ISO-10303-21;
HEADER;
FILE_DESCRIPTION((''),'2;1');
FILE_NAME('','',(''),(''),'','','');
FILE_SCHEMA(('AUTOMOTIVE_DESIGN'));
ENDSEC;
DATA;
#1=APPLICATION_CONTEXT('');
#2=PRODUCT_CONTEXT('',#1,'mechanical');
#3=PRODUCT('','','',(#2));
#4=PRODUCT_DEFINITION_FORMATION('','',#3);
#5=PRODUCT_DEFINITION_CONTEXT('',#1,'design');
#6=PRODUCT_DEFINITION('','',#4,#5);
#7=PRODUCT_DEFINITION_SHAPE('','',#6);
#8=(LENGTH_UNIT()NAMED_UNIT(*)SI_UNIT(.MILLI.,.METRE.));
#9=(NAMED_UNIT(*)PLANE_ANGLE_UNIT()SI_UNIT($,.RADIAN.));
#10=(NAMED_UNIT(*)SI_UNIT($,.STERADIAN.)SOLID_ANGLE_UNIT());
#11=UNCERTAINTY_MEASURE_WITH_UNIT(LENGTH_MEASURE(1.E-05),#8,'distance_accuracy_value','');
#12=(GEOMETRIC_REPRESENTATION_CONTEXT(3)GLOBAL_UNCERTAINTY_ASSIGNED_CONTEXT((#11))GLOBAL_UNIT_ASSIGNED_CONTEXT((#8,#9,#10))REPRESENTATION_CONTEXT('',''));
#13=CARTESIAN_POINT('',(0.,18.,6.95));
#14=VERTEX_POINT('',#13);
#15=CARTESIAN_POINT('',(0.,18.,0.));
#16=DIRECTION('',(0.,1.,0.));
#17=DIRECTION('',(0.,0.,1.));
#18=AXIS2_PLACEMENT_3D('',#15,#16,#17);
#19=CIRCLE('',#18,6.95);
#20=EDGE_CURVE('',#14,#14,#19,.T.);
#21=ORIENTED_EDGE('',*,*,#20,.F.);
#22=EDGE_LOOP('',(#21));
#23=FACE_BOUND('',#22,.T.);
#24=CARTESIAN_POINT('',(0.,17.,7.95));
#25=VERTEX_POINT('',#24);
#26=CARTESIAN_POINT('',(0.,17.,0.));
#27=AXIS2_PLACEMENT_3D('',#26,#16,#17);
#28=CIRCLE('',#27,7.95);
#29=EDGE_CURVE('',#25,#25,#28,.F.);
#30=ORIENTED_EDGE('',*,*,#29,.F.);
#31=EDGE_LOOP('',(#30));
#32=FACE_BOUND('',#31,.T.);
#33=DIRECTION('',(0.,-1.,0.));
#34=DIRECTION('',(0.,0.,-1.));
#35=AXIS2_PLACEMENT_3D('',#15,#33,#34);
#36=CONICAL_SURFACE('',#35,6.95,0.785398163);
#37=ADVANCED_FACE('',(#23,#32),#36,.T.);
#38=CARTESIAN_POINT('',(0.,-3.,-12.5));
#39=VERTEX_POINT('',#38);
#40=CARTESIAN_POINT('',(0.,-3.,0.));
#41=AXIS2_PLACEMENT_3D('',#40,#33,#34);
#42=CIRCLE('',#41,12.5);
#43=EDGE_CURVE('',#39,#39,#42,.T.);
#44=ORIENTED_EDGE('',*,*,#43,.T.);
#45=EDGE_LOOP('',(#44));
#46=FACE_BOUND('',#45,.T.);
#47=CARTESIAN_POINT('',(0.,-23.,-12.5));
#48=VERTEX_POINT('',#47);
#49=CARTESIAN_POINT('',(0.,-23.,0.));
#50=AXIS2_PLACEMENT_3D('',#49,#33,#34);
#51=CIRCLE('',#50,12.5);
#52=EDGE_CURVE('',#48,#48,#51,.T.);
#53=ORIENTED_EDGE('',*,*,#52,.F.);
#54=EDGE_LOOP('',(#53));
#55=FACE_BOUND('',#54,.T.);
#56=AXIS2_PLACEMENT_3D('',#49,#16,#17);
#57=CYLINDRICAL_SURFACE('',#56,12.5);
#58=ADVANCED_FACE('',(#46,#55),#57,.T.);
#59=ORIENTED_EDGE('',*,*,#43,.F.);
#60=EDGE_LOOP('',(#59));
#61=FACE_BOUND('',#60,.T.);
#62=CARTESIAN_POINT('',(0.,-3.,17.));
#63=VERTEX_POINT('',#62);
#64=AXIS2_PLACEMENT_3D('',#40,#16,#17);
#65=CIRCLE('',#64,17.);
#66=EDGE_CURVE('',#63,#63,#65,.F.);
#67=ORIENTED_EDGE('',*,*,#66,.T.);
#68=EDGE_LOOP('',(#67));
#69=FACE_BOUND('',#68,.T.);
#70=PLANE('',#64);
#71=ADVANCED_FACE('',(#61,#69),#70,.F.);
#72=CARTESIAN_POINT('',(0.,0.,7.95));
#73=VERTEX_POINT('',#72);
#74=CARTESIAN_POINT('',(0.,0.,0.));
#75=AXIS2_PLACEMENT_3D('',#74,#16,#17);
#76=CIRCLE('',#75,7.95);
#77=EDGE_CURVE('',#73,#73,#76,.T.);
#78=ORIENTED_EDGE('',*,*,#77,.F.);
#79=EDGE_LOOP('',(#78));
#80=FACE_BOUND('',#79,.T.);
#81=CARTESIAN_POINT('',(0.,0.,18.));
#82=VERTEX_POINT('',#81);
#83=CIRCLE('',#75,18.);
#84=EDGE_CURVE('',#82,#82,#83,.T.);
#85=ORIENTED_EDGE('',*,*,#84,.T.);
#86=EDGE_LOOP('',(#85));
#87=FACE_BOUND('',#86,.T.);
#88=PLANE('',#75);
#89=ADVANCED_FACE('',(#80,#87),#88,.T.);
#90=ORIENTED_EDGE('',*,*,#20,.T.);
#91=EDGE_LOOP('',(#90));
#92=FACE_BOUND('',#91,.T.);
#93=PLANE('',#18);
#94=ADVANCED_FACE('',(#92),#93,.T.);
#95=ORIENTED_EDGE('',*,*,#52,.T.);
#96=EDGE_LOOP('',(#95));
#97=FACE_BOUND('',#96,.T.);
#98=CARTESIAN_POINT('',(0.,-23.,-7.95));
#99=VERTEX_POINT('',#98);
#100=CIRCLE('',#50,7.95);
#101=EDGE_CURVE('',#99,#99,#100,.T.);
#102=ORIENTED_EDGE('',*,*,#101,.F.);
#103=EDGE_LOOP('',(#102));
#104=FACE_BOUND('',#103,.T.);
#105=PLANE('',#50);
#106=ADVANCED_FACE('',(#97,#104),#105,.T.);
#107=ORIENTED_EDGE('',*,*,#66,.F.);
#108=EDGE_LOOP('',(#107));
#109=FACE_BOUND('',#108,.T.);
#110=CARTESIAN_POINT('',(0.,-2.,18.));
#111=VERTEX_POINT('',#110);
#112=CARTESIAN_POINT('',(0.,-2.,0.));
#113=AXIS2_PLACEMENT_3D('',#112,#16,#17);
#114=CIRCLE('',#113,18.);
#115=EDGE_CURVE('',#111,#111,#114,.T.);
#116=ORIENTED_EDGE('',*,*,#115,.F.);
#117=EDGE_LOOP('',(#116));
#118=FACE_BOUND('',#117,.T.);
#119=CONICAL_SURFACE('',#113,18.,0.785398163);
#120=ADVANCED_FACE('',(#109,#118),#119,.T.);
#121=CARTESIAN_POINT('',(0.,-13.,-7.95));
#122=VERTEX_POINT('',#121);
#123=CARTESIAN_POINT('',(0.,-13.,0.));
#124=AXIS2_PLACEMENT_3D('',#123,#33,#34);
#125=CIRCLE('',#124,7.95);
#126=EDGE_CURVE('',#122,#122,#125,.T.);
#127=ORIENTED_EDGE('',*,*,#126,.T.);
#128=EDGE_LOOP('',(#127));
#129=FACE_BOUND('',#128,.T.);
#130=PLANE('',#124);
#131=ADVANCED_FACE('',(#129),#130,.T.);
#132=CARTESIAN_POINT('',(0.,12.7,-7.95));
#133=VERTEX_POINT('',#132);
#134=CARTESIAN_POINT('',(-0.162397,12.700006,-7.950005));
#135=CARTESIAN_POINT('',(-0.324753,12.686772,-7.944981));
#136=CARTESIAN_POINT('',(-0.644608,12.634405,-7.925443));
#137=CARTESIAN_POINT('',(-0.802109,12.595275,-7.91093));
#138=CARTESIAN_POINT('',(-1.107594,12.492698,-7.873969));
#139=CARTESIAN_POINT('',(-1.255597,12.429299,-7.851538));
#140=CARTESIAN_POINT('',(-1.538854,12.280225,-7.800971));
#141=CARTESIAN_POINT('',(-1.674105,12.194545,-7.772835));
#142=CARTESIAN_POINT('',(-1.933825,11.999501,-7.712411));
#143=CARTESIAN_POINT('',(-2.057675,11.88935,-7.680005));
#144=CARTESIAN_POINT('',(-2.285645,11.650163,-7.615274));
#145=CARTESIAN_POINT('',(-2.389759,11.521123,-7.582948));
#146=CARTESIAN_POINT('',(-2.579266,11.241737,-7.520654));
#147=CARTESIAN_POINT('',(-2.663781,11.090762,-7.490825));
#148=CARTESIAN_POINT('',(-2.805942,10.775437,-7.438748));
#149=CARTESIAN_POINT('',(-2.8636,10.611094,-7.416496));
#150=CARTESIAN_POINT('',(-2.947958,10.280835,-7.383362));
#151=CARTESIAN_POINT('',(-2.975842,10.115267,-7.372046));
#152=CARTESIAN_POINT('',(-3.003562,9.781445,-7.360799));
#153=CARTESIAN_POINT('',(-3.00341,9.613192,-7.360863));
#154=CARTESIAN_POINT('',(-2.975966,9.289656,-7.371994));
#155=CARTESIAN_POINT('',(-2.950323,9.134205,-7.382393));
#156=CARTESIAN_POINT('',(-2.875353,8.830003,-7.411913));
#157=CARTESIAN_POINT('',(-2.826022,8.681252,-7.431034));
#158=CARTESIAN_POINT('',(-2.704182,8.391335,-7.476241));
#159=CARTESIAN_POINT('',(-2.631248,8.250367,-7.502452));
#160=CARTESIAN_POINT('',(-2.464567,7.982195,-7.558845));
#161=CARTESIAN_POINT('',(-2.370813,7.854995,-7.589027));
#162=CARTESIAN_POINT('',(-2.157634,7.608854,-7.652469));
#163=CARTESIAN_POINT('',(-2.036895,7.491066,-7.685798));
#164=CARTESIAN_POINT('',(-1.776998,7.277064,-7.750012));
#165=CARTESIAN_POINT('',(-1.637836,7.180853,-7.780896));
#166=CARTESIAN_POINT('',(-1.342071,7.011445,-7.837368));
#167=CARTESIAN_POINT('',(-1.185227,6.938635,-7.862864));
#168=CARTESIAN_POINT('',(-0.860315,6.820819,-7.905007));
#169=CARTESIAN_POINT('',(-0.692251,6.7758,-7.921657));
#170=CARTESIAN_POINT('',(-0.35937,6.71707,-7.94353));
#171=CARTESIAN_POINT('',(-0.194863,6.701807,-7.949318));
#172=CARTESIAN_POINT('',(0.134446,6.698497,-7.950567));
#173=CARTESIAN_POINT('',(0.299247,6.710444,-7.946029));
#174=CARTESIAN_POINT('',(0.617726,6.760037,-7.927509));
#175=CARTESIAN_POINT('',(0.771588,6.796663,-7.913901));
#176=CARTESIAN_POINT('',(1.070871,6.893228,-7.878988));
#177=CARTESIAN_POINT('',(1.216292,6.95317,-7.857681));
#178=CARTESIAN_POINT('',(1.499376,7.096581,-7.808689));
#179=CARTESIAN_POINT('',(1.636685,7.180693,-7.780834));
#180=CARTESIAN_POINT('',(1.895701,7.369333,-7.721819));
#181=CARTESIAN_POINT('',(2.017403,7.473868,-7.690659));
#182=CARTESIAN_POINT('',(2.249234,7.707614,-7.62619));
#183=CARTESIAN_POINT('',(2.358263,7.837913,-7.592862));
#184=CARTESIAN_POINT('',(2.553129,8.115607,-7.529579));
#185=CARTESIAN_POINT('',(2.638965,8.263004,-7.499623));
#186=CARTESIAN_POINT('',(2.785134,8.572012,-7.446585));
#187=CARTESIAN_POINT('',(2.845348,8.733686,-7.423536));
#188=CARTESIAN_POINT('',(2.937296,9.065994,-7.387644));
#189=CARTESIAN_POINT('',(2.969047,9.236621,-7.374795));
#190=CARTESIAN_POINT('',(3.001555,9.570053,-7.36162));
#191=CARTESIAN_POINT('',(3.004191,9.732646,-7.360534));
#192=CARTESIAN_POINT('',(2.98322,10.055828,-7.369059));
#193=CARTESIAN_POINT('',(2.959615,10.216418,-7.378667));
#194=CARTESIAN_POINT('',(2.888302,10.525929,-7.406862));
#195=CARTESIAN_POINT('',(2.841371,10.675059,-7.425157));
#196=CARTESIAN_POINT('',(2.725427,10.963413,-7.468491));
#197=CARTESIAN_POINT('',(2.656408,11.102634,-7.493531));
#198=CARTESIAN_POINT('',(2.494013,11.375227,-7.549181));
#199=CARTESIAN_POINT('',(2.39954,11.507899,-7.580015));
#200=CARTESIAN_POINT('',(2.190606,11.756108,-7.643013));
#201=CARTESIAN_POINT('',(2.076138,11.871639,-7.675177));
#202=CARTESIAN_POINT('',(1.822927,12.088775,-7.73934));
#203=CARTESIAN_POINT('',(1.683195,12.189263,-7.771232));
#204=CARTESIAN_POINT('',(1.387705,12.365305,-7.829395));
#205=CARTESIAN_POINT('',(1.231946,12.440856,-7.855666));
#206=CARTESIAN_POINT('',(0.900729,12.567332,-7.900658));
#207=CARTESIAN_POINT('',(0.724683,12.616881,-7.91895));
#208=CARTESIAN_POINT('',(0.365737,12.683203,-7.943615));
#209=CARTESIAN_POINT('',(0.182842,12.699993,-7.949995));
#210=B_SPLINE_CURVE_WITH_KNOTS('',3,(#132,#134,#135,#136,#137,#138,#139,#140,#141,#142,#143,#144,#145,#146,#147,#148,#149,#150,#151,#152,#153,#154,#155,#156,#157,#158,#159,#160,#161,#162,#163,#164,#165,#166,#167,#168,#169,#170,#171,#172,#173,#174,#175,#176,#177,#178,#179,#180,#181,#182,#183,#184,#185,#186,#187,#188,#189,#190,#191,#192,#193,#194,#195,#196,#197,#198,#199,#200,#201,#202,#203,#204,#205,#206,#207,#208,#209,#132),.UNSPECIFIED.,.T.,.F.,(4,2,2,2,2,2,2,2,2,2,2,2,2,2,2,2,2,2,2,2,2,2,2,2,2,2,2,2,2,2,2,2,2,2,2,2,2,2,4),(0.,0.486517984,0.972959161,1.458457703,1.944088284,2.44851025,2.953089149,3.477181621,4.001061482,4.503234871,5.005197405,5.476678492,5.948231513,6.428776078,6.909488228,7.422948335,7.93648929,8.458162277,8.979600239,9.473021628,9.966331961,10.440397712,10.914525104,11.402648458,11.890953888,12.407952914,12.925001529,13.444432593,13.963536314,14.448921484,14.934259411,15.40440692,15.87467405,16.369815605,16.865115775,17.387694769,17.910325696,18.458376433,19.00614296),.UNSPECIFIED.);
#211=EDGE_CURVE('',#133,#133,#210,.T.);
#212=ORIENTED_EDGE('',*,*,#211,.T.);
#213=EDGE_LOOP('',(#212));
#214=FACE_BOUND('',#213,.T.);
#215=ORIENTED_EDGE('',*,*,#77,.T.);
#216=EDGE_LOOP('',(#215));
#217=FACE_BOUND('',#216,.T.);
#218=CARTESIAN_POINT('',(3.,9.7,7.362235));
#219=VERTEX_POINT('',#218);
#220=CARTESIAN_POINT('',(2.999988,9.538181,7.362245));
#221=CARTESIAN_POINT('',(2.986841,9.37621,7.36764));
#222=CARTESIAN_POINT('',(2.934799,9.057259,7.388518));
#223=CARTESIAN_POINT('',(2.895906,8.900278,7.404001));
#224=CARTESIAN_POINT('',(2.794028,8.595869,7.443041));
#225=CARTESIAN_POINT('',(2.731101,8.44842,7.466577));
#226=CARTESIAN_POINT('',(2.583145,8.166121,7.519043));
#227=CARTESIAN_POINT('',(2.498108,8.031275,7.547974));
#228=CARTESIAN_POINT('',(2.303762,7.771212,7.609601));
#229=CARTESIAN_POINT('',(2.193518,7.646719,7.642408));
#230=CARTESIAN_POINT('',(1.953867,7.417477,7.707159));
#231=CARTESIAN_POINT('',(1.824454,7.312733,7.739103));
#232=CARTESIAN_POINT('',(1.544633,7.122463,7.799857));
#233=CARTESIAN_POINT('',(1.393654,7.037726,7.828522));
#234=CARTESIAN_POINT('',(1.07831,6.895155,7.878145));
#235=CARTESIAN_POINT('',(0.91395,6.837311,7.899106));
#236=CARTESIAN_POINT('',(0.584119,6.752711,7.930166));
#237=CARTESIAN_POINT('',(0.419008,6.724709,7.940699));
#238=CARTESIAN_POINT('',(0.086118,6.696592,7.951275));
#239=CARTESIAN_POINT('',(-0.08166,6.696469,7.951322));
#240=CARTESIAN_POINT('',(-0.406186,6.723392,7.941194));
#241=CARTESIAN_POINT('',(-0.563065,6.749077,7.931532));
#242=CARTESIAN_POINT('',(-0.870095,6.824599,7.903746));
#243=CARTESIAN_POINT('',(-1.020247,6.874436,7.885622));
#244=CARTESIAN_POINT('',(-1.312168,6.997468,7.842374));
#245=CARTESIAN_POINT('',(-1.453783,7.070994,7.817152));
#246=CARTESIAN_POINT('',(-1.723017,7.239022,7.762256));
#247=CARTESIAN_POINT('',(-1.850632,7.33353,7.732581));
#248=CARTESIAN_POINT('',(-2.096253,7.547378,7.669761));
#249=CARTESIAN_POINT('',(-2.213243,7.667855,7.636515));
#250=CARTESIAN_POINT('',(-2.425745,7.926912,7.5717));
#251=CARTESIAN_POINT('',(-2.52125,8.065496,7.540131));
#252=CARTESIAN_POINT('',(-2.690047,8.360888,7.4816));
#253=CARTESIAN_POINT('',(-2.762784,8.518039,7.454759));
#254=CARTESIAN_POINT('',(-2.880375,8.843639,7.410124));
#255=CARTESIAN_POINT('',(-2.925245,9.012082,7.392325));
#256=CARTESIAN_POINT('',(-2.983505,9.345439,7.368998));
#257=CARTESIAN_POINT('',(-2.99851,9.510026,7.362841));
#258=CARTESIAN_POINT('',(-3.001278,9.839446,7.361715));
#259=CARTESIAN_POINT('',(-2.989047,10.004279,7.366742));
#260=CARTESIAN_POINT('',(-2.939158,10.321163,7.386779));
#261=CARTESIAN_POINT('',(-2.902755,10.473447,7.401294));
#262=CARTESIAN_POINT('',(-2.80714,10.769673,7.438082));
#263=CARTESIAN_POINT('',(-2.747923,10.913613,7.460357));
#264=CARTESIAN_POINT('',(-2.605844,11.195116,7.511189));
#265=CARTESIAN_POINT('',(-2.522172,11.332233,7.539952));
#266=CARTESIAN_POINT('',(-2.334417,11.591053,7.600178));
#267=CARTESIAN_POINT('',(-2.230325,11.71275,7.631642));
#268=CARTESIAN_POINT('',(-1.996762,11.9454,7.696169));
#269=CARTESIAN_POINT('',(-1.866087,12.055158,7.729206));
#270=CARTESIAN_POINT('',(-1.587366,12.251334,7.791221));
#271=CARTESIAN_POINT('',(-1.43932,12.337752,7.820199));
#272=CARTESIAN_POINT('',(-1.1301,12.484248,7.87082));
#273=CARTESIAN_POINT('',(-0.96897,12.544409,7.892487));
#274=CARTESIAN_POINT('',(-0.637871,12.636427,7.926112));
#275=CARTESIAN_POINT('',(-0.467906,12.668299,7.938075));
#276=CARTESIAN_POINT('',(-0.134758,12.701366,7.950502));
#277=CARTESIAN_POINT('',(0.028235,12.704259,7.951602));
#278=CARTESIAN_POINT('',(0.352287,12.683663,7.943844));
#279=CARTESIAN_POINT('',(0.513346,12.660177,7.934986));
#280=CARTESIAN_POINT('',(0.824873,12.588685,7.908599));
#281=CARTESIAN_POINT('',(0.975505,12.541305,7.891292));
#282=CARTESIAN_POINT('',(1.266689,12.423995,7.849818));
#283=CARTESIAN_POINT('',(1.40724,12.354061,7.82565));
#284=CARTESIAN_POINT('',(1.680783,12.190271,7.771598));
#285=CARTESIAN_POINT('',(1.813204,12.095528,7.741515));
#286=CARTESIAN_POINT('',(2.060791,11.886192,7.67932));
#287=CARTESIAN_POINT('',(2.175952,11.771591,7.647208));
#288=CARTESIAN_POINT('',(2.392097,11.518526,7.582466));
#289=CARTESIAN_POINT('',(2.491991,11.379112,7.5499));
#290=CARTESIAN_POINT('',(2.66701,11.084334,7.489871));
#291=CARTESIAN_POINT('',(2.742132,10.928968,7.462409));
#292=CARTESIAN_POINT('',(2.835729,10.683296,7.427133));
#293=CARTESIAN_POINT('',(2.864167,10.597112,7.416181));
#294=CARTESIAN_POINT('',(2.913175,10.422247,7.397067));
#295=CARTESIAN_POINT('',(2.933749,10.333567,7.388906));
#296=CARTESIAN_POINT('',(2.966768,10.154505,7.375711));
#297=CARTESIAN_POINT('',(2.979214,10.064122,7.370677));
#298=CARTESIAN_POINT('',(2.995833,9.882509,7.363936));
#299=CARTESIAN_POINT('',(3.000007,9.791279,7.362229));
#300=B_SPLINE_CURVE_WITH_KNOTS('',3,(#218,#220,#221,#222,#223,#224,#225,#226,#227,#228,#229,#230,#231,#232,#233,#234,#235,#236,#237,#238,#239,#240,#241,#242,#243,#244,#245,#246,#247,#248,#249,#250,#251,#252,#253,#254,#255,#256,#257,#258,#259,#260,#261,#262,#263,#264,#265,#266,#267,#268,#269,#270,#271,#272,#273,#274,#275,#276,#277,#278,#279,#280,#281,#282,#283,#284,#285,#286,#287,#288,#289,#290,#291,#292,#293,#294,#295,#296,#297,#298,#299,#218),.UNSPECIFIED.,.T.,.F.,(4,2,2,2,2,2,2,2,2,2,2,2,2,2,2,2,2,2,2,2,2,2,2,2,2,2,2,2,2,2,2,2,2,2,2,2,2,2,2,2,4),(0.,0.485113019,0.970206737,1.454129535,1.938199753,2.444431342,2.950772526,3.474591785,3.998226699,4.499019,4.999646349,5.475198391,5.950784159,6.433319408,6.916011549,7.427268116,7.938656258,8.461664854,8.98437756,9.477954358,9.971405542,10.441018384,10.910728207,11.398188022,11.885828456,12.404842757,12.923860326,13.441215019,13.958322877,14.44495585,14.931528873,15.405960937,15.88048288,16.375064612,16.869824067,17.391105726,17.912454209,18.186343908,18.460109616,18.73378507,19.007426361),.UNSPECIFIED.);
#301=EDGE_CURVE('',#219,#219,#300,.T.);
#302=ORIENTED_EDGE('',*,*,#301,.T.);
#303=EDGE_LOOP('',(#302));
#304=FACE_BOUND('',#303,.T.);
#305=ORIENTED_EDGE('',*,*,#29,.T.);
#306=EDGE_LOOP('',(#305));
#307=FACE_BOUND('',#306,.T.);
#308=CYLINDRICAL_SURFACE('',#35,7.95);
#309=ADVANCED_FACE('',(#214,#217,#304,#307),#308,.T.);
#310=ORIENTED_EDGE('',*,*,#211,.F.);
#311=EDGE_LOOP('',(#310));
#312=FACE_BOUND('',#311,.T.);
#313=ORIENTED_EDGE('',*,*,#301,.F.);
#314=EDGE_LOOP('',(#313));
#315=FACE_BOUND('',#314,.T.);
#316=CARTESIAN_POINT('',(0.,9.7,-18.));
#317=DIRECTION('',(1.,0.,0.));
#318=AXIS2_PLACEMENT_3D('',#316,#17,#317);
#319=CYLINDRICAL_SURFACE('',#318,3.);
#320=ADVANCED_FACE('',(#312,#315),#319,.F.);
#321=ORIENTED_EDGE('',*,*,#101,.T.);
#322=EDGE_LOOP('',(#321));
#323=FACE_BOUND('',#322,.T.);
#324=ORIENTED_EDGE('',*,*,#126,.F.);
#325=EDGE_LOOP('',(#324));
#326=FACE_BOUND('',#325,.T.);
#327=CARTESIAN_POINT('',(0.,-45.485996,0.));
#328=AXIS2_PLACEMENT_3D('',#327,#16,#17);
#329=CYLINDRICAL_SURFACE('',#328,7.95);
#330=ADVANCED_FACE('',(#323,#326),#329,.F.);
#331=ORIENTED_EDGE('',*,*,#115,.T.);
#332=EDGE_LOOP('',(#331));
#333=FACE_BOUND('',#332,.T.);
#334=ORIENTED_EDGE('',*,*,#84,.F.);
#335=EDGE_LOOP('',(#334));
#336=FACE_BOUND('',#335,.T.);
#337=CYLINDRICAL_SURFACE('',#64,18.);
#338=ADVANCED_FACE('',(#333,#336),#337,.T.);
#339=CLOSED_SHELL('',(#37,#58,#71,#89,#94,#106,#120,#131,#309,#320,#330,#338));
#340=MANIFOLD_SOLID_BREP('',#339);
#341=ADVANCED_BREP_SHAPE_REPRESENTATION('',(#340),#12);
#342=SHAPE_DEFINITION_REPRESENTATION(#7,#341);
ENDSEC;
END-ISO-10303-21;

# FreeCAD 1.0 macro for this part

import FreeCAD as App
import Part
import Sketcher

V = App.Vector


def edges_at(feature, points):
    """Names of the edges that pass closest to the given points."""
    edges = feature.Shape.Edges
    near = lambda p: min(range(len(edges)), key=lambda i: edges[i].distToShape(Part.Vertex(*p))[0])
    return sorted({f"Edge{near(p) + 1}" for p in points})

doc = App.newDocument("Part")
body = doc.addObject("PartDesign::Body", "Body")

# Sketch on XZ plane
sketch1 = body.newObject("Sketcher::SketchObject", "Sketch")
sketch1.AttachmentSupport = (doc.getObject("XZ_Plane"), [""])
sketch1.MapMode = "FlatFace"
sketch1.addGeometry(Part.Circle(V(0, 0, 0), V(0, 0, 1), 8), False)
sketch1.addConstraint(Sketcher.Constraint("Coincident", 0, 3, -1, 1))
sketch1.addConstraint(Sketcher.Constraint("Diameter", 0, 15.9))
pad1 = body.newObject("PartDesign::Pad", "Pad")
pad1.Profile = sketch1
pad1.Length = 18
pad1.Reversed = True
doc.recompute()

chamfer = body.newObject("PartDesign::Chamfer", "Chamfer")
chamfer.Base = (pad1, edges_at(pad1, [(0, 18, -7.95)]))
chamfer.Size = 1

# Sketch on XZ plane
sketch2 = body.newObject("Sketcher::SketchObject", "Sketch001")
sketch2.AttachmentSupport = (doc.getObject("XZ_Plane"), [""])
sketch2.MapMode = "FlatFace"
sketch2.addGeometry(Part.Circle(V(0, 0, 0), V(0, 0, 1), 18), False)
sketch2.addConstraint(Sketcher.Constraint("Coincident", 0, 3, -1, 1))
sketch2.addConstraint(Sketcher.Constraint("Diameter", 0, 36.0))
pad2 = body.newObject("PartDesign::Pad", "Pad001")
pad2.Profile = sketch2
pad2.Length = 3
doc.recompute()

chamfer2 = body.newObject("PartDesign::Chamfer", "Chamfer001")
chamfer2.Base = (pad2, edges_at(pad2, [(0, -3, -18)]))
chamfer2.Size = 1

# Sketch on XZ plane
sketch3 = body.newObject("Sketcher::SketchObject", "Sketch002")
sketch3.AttachmentSupport = (doc.getObject("XZ_Plane"), [""])
sketch3.MapMode = "FlatFace"
sketch3.AttachmentOffset = App.Placement(V(0, 0, 3), App.Rotation())
sketch3.addGeometry(Part.Circle(V(0, 0, 0), V(0, 0, 1), 12), False)
sketch3.addConstraint(Sketcher.Constraint("Coincident", 0, 3, -1, 1))
sketch3.addConstraint(Sketcher.Constraint("Diameter", 0, 25.0))
pad3 = body.newObject("PartDesign::Pad", "Pad002")
pad3.Profile = sketch3
pad3.Length = 20

# Sketch on XY plane
sketch4 = body.newObject("Sketcher::SketchObject", "Sketch003")
sketch4.AttachmentSupport = (doc.getObject("XY_Plane"), [""])
sketch4.MapMode = "FlatFace"
sketch4.addGeometry(Part.Circle(V(0, 9.7, 0), V(0, 0, 1), 3), False)
sketch4.addConstraint(Sketcher.Constraint("PointOnObject", 0, 3, -2))
sketch4.addConstraint(Sketcher.Constraint("Diameter", 0, 6.0))
sketch4.addConstraint(Sketcher.Constraint("DistanceY", -1, 1, 0, 3, 9.7))
pocket1 = body.newObject("PartDesign::Pocket", "Pocket")
pocket1.Profile = sketch4
pocket1.Type = "ThroughAll"
pocket1.Midplane = True

# Sketch on XZ plane
sketch5 = body.newObject("Sketcher::SketchObject", "Sketch004")
sketch5.AttachmentSupport = (doc.getObject("XZ_Plane"), [""])
sketch5.MapMode = "FlatFace"
sketch5.AttachmentOffset = App.Placement(V(0, 0, 23), App.Rotation())
sketch5.addGeometry(Part.Circle(V(0, 0, 0), V(0, 0, 1), 8), False)
sketch5.addConstraint(Sketcher.Constraint("Coincident", 0, 3, -1, 1))
sketch5.addConstraint(Sketcher.Constraint("Diameter", 0, 15.9))
pocket2 = body.newObject("PartDesign::Pocket", "Pocket001")
pocket2.Profile = sketch5
pocket2.Length = 10

doc.recompute()
